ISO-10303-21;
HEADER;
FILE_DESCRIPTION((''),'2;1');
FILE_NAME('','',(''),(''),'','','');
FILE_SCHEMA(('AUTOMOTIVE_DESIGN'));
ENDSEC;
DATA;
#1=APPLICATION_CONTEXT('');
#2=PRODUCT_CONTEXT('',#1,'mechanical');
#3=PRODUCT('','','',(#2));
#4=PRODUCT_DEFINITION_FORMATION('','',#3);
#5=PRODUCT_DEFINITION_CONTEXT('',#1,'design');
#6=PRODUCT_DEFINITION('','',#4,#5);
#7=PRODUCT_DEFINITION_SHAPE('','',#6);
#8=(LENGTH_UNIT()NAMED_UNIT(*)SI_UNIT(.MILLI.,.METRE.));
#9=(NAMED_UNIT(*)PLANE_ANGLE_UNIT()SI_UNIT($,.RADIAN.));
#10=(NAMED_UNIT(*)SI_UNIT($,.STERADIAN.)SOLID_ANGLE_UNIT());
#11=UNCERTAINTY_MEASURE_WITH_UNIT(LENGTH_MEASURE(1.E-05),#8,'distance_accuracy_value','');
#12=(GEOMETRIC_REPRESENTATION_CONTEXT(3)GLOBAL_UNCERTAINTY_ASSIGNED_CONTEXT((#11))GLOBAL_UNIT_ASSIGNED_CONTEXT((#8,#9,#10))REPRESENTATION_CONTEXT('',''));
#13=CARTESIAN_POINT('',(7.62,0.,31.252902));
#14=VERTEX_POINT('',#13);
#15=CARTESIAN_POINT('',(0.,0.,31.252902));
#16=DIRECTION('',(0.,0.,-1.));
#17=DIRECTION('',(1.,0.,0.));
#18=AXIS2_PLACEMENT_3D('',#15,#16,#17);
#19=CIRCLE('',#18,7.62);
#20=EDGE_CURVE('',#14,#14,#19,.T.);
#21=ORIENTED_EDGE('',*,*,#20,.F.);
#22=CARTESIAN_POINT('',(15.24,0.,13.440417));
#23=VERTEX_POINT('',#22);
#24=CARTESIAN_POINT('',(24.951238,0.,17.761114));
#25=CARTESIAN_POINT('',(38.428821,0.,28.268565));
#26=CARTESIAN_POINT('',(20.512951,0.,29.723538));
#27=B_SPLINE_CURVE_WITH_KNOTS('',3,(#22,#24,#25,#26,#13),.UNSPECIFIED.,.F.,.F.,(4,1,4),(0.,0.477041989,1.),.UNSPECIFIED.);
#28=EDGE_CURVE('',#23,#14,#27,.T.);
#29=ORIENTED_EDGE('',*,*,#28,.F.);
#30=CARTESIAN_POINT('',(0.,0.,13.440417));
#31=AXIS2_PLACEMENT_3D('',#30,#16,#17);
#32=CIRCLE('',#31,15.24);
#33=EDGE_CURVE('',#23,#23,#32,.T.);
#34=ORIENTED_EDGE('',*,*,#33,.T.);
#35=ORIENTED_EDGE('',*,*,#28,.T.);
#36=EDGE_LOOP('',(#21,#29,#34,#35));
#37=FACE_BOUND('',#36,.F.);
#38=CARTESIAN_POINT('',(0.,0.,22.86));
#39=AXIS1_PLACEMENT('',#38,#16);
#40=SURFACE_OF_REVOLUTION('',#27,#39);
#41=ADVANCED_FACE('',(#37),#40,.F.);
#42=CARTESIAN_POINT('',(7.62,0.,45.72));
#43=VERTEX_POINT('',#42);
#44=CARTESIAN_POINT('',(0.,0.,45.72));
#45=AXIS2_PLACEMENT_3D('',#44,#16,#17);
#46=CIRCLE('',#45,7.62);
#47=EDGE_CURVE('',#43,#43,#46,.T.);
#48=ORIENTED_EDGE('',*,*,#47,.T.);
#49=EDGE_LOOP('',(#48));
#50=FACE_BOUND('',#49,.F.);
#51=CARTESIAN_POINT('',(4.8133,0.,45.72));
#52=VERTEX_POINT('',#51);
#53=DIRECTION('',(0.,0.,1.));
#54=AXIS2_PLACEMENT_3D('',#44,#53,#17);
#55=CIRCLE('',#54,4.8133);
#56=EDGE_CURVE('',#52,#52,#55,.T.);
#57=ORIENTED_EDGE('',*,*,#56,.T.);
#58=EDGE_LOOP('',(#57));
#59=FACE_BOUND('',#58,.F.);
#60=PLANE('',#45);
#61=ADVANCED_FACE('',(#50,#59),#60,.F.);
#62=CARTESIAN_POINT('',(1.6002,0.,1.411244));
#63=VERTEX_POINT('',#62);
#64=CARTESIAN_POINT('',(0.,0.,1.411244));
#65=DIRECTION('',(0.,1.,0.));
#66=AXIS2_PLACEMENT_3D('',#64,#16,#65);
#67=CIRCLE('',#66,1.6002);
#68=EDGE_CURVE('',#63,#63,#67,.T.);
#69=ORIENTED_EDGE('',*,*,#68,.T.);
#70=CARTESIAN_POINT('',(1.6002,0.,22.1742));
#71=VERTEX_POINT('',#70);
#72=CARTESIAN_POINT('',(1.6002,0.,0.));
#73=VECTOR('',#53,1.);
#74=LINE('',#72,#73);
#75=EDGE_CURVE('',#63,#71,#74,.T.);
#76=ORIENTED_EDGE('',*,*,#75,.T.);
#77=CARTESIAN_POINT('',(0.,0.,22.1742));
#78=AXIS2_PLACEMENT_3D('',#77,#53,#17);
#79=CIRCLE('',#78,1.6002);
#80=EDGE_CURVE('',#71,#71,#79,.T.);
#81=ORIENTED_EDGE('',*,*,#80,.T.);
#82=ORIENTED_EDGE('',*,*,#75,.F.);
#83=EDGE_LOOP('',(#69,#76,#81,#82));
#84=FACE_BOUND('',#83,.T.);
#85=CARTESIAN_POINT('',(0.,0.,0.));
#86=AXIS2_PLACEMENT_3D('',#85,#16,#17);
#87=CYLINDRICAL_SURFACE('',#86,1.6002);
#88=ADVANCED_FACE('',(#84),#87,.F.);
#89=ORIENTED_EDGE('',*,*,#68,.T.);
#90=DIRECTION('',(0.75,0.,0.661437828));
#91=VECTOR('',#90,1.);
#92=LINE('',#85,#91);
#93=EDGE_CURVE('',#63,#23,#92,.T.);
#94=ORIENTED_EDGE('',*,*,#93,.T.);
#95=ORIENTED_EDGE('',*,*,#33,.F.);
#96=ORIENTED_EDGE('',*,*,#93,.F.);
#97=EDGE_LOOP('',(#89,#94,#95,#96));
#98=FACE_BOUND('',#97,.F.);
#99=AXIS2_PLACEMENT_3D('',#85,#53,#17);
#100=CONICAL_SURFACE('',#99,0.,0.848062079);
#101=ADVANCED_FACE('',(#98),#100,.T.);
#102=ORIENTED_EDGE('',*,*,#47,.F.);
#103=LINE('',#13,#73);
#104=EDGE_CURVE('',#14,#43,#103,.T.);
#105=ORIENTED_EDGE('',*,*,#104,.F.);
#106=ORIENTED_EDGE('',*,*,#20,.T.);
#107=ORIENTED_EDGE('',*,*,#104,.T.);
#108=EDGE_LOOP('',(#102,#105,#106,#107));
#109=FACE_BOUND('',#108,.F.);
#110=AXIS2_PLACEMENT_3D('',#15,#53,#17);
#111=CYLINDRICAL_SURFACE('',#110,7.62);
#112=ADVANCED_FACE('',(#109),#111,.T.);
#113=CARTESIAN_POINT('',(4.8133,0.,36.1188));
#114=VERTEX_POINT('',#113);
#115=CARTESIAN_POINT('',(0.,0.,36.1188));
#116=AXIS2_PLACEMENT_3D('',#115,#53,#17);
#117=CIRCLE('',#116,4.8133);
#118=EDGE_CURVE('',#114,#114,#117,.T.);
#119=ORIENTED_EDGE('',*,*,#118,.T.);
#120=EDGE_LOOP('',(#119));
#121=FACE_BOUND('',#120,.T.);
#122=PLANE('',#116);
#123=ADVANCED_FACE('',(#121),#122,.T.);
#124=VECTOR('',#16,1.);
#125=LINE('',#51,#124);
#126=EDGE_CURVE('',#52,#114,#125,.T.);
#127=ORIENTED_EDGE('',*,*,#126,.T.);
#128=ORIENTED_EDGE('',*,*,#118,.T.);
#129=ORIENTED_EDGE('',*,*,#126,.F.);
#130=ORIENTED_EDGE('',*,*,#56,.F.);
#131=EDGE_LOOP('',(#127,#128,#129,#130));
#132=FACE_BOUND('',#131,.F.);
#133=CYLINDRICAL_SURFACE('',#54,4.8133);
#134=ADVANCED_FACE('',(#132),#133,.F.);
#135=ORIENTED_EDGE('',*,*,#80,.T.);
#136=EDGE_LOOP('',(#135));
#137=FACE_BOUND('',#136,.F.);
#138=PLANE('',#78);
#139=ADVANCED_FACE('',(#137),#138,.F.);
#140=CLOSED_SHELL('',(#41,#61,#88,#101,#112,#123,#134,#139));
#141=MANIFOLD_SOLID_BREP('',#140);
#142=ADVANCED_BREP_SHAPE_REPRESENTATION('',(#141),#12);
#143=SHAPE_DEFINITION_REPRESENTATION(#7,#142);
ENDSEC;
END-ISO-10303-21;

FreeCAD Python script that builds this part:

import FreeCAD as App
import Part
import Sketcher

V = App.Vector
Q = App.Units.Quantity

doc = App.newDocument("Part")
params = doc.addObject("Spreadsheet::Sheet", "Params")
for row, (alias, value) in enumerate([
    ("sketch1_height", "1.8 in"),
    ("revolution_angle", "360 deg"),
    ("sketch2_diameter", "0.379 in"),
    ("pocket1_length", "0.378 in"),
    ("sketch3_diameter", "0.126 in"),
    ("pocket2_length", "0.873 in"),
], start=1):
    params.set(f"A{row}", alias)
    params.set(f"B{row}", "=" + value)
    params.setAlias(f"B{row}", alias)

body = doc.addObject("PartDesign::Body", "Body")

sketch1 = doc.addObject("Sketcher::SketchObject", "Sketch")
body.addObject(sketch1)
sketch1.AttachmentSupport = (doc.XZ_Plane, [""])
sketch1.MapMode = "FlatFace"
sketch1.addGeometry([
    Part.BSplineCurve([V(15.24, 13.440417, 0), V(24.951238, 17.761114, 0), V(38.428821, 28.268565, 0), V(20.512951, 29.723538, 0), V(7.62, 31.252902, 0)], [4, 1, 4], [0, 0.477041989, 1], False, 3, [1, 1, 1, 1, 1], False),
    Part.LineSegment(V(7.62, 31.252902, 0), V(7.62, 45.72, 0)),
    Part.LineSegment(V(7.62, 45.72, 0), V(0, 45.72, 0)),
    Part.LineSegment(V(0, 45.72, 0), V(0, 0, 0)),
    Part.LineSegment(V(0, 0, 0), V(15.24, 13.440417, 0)),
], False)
sketch1.addConstraint([
    Sketcher.Constraint("Block", 0),
    Sketcher.Constraint("Coincident", 0, 2, 1, 1),
    Sketcher.Constraint("Coincident", 1, 2, 2, 1),
    Sketcher.Constraint("Coincident", 2, 2, 3, 1),
    Sketcher.Constraint("Coincident", 3, 2, 4, 1),
    Sketcher.Constraint("Coincident", 4, 2, 0, 1),
    Sketcher.Constraint("Vertical", 1),
    Sketcher.Constraint("Horizontal", 2),
    Sketcher.Constraint("Vertical", 3),
    Sketcher.Constraint("Coincident", 3, 2, -1, 1),
    Sketcher.Constraint("DistanceY", 3, 2, 3, 1, Q("1.8 in")),
])
sketch1.setExpression("Constraints[10]", "Params.sketch1_height")
revolution = doc.addObject("PartDesign::Revolution", "Revolution")
body.addObject(revolution)
revolution.Profile = sketch1
revolution.ReferenceAxis = (sketch1, ["V_Axis"])
revolution.setExpression("Angle", "Params.revolution_angle")

sketch2 = doc.addObject("Sketcher::SketchObject", "Sketch001")
body.addObject(sketch2)
sketch2.AttachmentSupport = (doc.XY_Plane, [""])
sketch2.MapMode = "FlatFace"
sketch2.AttachmentOffset = App.Placement(V(0, 0, 1.8 * 25.4), App.Rotation())
sketch2.addGeometry(Part.Circle(V(0, 0, 0), V(0, 0, 1), 4.8), False)
sketch2.addConstraint([
    Sketcher.Constraint("Coincident", 0, 3, -1, 1),
    Sketcher.Constraint("Diameter", 0, Q("0.379 in")),
])
sketch2.setExpression("Constraints[1]", "Params.sketch2_diameter")
pocket1 = doc.addObject("PartDesign::Pocket", "Pocket")
body.addObject(pocket1)
pocket1.Profile = sketch2
pocket1.setExpression("Length", "Params.pocket1_length")

sketch3 = doc.addObject("Sketcher::SketchObject", "Sketch002")
body.addObject(sketch3)
sketch3.AttachmentSupport = (doc.XY_Plane, [""])
sketch3.MapMode = "FlatFace"
sketch3.addGeometry(Part.Circle(V(0, 0, 0), V(0, 0, 1), 1.6), False)
sketch3.addConstraint([
    Sketcher.Constraint("Coincident", 0, 3, -1, 1),
    Sketcher.Constraint("Diameter", 0, Q("0.126 in")),
])
sketch3.setExpression("Constraints[1]", "Params.sketch3_diameter")
pocket2 = doc.addObject("PartDesign::Pocket", "Pocket001")
body.addObject(pocket2)
pocket2.Profile = sketch3
pocket2.setExpression("Length", "Params.pocket2_length")
pocket2.Reversed = True

doc.recompute()
